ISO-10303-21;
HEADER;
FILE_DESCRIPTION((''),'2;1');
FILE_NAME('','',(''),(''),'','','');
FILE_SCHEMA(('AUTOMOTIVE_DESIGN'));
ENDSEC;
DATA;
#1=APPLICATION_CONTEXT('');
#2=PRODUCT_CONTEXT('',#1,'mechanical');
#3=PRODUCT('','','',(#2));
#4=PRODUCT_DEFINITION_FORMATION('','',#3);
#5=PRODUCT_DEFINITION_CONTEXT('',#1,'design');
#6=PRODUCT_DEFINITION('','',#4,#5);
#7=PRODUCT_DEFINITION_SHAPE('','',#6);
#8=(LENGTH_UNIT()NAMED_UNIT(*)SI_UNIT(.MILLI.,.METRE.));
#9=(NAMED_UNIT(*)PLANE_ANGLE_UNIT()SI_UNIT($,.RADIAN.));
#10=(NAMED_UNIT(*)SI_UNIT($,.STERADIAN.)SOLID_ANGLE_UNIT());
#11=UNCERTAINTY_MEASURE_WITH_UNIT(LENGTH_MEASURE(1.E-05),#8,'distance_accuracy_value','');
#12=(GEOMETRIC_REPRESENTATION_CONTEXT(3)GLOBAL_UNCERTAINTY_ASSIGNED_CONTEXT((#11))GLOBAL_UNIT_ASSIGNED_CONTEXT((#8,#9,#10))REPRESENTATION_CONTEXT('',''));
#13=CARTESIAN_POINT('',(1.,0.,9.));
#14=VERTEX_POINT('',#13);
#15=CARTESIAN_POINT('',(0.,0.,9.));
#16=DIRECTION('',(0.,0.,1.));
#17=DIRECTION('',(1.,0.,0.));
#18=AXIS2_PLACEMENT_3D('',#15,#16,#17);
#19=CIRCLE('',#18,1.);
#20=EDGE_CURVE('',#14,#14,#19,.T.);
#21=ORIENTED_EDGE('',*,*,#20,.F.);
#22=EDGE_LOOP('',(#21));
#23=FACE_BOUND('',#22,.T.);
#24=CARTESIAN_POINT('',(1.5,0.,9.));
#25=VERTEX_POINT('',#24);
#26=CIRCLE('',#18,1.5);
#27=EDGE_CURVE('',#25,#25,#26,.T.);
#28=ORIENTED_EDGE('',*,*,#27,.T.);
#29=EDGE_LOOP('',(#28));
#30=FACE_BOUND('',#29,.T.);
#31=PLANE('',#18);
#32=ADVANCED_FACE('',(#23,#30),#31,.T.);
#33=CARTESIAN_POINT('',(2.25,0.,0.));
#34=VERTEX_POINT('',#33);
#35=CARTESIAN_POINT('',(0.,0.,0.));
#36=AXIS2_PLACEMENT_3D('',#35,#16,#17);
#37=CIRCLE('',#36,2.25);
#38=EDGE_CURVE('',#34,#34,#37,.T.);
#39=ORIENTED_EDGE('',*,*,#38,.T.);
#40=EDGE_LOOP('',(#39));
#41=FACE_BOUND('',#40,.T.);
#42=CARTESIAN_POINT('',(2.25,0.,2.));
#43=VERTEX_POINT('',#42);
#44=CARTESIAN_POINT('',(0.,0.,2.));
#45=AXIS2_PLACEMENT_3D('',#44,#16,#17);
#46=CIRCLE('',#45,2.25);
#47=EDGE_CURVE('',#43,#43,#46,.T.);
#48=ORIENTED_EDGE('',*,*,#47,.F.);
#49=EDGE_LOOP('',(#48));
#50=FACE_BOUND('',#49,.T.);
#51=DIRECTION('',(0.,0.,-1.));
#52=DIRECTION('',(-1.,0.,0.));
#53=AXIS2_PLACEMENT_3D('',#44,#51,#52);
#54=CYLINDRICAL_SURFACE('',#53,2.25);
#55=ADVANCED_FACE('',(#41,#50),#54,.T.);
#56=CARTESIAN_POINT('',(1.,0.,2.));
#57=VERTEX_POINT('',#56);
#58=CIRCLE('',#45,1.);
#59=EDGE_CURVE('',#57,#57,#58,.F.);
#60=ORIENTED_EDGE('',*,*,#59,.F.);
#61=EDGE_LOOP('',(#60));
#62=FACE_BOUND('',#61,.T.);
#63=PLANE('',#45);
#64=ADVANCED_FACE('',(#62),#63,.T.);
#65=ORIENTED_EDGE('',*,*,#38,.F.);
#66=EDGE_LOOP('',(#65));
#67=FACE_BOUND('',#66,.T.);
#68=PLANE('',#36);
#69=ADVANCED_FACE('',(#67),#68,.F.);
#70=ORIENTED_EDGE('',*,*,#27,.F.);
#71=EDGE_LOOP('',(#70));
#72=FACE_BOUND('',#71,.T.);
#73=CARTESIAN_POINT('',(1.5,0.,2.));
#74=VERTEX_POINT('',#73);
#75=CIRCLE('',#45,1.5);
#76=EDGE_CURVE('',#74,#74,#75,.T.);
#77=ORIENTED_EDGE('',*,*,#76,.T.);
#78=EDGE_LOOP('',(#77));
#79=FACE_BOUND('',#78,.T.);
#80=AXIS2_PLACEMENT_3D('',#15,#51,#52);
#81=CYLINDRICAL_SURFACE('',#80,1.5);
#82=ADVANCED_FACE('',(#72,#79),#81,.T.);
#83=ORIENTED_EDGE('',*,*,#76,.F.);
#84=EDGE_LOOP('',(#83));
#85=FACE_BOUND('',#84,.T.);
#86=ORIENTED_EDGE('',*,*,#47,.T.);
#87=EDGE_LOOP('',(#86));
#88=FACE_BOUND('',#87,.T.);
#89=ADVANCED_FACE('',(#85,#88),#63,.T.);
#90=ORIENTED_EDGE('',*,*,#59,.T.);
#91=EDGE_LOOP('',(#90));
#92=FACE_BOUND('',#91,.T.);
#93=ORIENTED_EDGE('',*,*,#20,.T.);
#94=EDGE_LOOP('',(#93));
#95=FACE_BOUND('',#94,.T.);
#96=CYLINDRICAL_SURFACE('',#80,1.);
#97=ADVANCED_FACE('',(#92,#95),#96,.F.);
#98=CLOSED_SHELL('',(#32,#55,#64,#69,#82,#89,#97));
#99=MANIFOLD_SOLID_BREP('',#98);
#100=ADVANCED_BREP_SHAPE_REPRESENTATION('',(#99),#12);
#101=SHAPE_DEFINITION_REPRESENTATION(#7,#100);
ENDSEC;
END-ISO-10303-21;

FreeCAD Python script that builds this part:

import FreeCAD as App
import Part
import Sketcher

doc = App.newDocument("Part")
params = doc.addObject("Spreadsheet::Sheet", "Params")
for row, (alias, value) in enumerate([
    ("sketch1_diameter", "4.5 mm"),
    ("pad1_length", "2 mm"),
    ("sketch2_diameter", "3 mm"),
    ("sketch2_diameter2", "2 mm"),
    ("pad2_length", "7 mm"),
], start=1):
    params.set(f"A{row}", alias)
    params.set(f"B{row}", "=" + value)
    params.setAlias(f"B{row}", alias)

body = doc.addObject("PartDesign::Body", "Body")

# Sketch on XY plane
sketch1 = body.newObject("Sketcher::SketchObject", "Sketch")
sketch1.AttachmentSupport = (doc.getObject("XY_Plane"), [""])
sketch1.MapMode = "FlatFace"
sketch1.addGeometry(Part.Circle(App.Vector(0, 0, 0), App.Vector(0, 0, 1), 2.2), False)
sketch1.addConstraint(Sketcher.Constraint("Coincident", 0, 3, -1, 1))
sketch1.addConstraint(Sketcher.Constraint("Diameter", 0, 4.5))
sketch1.setExpression("Constraints[1]", "Params.sketch1_diameter")
pad1 = body.newObject("PartDesign::Pad", "Pad")
pad1.Profile = sketch1
pad1.setExpression("Length", "Params.pad1_length")

# Sketch on XY plane
sketch2 = body.newObject("Sketcher::SketchObject", "Sketch001")
sketch2.AttachmentSupport = (doc.getObject("XY_Plane"), [""])
sketch2.MapMode = "FlatFace"
sketch2.AttachmentOffset = App.Placement(App.Vector(0, 0, 2), App.Rotation())
sketch2.addGeometry(Part.Circle(App.Vector(0, 0, 0), App.Vector(0, 0, 1), 1.5), False)
sketch2.addGeometry(Part.Circle(App.Vector(0, 0, 0), App.Vector(0, 0, 1), 1), False)
sketch2.addConstraint(Sketcher.Constraint("Coincident", 0, 3, -1, 1))
sketch2.addConstraint(Sketcher.Constraint("Coincident", 1, 3, -1, 1))
sketch2.addConstraint(Sketcher.Constraint("Diameter", 0, 3.0))
sketch2.addConstraint(Sketcher.Constraint("Diameter", 1, 2.0))
sketch2.setExpression("Constraints[2]", "Params.sketch2_diameter")
sketch2.setExpression("Constraints[3]", "Params.sketch2_diameter2")
pad2 = body.newObject("PartDesign::Pad", "Pad001")
pad2.Profile = sketch2
pad2.setExpression("Length", "Params.pad2_length")

doc.recompute()
